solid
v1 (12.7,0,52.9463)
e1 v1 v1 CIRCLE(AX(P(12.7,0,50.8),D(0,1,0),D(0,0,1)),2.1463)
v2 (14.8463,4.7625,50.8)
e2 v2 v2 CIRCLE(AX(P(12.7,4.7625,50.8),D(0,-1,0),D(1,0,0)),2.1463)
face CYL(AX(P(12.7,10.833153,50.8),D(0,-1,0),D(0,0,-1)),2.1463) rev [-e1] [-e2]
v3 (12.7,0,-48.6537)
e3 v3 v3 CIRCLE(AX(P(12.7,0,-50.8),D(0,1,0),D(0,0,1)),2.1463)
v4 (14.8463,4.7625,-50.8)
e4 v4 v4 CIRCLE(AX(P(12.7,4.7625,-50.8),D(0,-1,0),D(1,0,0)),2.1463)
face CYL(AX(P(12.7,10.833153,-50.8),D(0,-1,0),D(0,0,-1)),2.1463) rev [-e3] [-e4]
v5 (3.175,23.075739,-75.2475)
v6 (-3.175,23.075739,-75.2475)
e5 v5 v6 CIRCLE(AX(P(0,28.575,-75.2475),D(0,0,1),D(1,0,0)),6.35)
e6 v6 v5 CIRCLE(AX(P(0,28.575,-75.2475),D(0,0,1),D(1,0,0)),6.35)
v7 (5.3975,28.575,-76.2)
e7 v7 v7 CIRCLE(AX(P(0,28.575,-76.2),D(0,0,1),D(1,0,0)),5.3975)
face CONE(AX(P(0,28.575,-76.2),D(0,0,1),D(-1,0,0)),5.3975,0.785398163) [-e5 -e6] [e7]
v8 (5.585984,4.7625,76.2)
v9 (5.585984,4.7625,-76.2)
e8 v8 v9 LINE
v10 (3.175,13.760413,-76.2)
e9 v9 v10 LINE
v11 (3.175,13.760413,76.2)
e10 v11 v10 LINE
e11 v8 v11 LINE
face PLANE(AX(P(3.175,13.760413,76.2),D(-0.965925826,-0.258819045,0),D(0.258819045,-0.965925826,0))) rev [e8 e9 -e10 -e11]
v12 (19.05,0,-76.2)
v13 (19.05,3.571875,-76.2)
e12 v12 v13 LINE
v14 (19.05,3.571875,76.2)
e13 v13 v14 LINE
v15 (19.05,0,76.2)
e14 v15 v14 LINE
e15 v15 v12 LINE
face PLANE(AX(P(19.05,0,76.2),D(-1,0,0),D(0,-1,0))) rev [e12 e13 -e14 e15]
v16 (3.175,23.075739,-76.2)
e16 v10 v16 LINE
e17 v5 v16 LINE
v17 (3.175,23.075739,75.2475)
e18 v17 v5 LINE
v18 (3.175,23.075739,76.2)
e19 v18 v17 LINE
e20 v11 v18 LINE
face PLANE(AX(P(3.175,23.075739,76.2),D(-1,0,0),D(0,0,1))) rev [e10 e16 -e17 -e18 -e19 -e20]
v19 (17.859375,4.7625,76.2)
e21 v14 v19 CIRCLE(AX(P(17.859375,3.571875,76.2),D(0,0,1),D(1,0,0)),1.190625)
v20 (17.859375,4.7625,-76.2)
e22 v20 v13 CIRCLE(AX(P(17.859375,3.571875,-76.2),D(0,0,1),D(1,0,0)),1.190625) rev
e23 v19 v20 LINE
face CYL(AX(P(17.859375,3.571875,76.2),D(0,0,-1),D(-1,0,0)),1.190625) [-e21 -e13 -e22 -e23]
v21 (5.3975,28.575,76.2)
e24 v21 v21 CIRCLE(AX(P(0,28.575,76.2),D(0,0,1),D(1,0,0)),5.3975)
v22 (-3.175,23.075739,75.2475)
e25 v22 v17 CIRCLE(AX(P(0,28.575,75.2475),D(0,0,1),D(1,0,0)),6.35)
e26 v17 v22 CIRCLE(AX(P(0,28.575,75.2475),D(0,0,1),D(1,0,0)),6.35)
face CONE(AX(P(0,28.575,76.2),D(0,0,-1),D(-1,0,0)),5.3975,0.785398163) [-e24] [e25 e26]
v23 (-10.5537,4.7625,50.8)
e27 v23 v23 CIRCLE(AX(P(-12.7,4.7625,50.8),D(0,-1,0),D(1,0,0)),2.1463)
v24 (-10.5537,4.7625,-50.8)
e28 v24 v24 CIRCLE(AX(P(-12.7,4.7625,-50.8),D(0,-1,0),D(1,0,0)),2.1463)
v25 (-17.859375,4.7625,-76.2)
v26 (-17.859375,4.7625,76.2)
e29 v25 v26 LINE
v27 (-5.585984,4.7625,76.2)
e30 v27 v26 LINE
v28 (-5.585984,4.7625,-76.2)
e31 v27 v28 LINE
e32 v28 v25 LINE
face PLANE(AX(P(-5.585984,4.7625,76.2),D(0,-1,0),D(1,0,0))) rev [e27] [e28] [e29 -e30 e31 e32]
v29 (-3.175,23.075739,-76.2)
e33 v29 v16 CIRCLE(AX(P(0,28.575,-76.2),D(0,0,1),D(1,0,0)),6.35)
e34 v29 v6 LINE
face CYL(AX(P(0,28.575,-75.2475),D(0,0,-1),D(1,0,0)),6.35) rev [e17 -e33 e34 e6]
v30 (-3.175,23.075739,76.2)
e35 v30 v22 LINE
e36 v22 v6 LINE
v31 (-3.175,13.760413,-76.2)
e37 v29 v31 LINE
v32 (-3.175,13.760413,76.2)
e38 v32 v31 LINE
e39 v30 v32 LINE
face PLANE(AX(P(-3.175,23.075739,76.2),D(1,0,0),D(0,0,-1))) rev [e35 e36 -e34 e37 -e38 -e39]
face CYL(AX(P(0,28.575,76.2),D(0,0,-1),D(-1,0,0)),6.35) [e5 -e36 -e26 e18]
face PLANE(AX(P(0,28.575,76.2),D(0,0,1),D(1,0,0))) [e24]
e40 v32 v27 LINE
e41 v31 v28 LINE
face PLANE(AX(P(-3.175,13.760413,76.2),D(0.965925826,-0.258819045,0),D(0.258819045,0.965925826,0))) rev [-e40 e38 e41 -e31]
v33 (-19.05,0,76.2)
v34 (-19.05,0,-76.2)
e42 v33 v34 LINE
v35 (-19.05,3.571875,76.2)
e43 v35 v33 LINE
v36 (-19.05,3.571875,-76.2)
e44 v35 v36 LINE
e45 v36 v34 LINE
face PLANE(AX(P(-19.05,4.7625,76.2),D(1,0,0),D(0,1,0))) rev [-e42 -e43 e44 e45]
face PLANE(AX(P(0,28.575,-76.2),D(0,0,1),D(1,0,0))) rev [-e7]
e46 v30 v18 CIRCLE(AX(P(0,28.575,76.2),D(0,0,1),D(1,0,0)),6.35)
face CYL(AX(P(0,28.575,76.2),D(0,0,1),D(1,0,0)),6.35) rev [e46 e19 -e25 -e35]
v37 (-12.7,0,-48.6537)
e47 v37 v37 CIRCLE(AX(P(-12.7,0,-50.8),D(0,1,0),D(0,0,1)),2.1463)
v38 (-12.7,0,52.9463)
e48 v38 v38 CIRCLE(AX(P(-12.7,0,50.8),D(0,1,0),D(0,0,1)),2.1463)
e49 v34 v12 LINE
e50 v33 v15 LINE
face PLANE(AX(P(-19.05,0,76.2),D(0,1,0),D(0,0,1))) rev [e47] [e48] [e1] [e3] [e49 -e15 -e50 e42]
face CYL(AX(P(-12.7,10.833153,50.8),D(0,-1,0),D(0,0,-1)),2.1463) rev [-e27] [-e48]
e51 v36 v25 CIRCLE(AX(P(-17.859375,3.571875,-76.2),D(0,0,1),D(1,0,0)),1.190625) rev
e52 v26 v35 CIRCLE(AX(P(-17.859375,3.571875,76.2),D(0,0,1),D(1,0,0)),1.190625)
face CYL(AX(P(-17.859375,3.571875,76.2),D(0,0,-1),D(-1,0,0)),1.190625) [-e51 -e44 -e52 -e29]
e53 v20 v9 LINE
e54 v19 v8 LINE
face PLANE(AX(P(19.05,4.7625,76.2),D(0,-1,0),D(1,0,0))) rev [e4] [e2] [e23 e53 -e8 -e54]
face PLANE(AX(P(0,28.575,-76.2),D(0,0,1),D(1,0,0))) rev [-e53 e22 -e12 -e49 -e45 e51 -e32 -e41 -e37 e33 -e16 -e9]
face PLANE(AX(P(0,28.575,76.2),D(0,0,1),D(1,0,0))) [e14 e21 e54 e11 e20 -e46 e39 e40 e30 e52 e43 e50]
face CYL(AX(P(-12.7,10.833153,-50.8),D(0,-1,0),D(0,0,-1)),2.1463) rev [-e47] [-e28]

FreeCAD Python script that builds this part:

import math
import FreeCAD as App
import Part
import Sketcher
from FreeCAD import Vector
Q = App.Units.Quantity


def edges_at(feature, points):
    """Names of the edges that pass closest to the given points."""
    edges = feature.Shape.Edges
    near = lambda p: min(range(len(edges)), key=lambda i: edges[i].distToShape(Part.Vertex(*p))[0])
    return sorted({f"Edge{near(p) + 1}" for p in points})

doc = App.newDocument("Part")
params = doc.addObject("Spreadsheet::Sheet", "Params")
for row, (alias, value) in enumerate([
    ("sketch1_radius", "0.25 in"),
    ("sketch1_width", "1.5 in"),
    ("sketch1_height", "0.1875 in"),
    ("pad1_length", "6 in"),
    ("groove_angle", "360 deg"),
    ("fillet_radius", "0.046875 in"),
    ("sketch3_diameter", "0.169 in"),
    ("pocket1_length", "0.1875 in"),
    ("linearpattern_pitch", "4 in"),
], start=1):
    params.set(f"A{row}", alias)
    params.set(f"B{row}", "=" + value)
    params.setAlias(f"B{row}", alias)

body = doc.addObject("PartDesign::Body", "Body")

# Sketch on XY plane
sketch1 = body.newObject("Sketcher::SketchObject", "Sketch")
sketch1.AttachmentSupport = (doc.getObject("XY_Plane"), [""])
sketch1.MapMode = "FlatFace"
sketch1.addGeometry([
    Part.LineSegment(Vector(-19.05, 0, 0), Vector(19.05, 0, 0)),  # 0
    Part.LineSegment(Vector(19.05, 0, 0), Vector(19.05, 4.7625, 0)),  # 1
    Part.LineSegment(Vector(19.05, 4.7625, 0), Vector(5.585984, 4.7625, 0)),  # 2
    Part.LineSegment(Vector(5.585984, 4.7625, 0), Vector(3.175, 13.760413, 0)),  # 3
    Part.LineSegment(Vector(3.175, 13.760413, 0), Vector(3.175, 23.075739, 0)),  # 4
    Part.ArcOfCircle(Part.Circle(Vector(0, 28.575, 0), Vector(0, 0, 1), 6.35), math.radians(-60), math.radians(240)),  # 5
    Part.LineSegment(Vector(-3.175, 23.075739, 0), Vector(-3.175, 13.760413, 0)),  # 6
    Part.LineSegment(Vector(-3.175, 13.760413, 0), Vector(-5.585984, 4.7625, 0)),  # 7
    Part.LineSegment(Vector(-5.585984, 4.7625, 0), Vector(-19.05, 4.7625, 0)),  # 8
    Part.LineSegment(Vector(-19.05, 4.7625, 0), Vector(-19.05, 0, 0)),  # 9
], False)
sketch1.addConstraint([
    Sketcher.Constraint("Coincident", 0, 2, 1, 1),
    Sketcher.Constraint("Coincident", 1, 2, 2, 1),
    Sketcher.Constraint("Coincident", 2, 2, 3, 1),
    Sketcher.Constraint("Coincident", 3, 2, 4, 1),
    Sketcher.Constraint("Coincident", 4, 2, 5, 1),
    Sketcher.Constraint("Coincident", 5, 2, 6, 1),
    Sketcher.Constraint("Coincident", 6, 2, 7, 1),
    Sketcher.Constraint("Coincident", 7, 2, 8, 1),
    Sketcher.Constraint("Coincident", 8, 2, 9, 1),
    Sketcher.Constraint("Coincident", 9, 2, 0, 1),
    Sketcher.Constraint("Horizontal", 0),
    Sketcher.Constraint("Vertical", 1),
    Sketcher.Constraint("Horizontal", 2),
    Sketcher.Constraint("Vertical", 4),
    Sketcher.Constraint("Vertical", 6),
    Sketcher.Constraint("Horizontal", 8),
    Sketcher.Constraint("Vertical", 9),
    Sketcher.Constraint("Symmetric", 0, 2, 9, 2, -1, 1),
    Sketcher.Constraint("Symmetric", 4, 2, 5, 2, -2),
    Sketcher.Constraint("Symmetric", 2, 2, 7, 2, -2),
    Sketcher.Constraint("Horizontal", 3, 2, 6, 2),
    Sketcher.Constraint("Radius", 5, Q("0.25 in")),
    Sketcher.Constraint("DistanceX", 0, 1, 0, 2, Q("1.5 in")),
    Sketcher.Constraint("Angle", 3, Q("105 deg")),
    Sketcher.Constraint("DistanceY", 1, 1, 1, 2, Q("0.1875 in")),
    Sketcher.Constraint("DistanceX", 5, 2, 4, 2, Q("0.25 in")),
    Sketcher.Constraint("DistanceY", -1, 1, 5, 3, Q("1.125 in")),
    Sketcher.Constraint("DistanceX", 2, 2, 2, 1, Q("13.464016 mm")),
])
sketch1.setExpression("Constraints[21]", "Params.sketch1_radius")
sketch1.setExpression("Constraints[22]", "Params.sketch1_width")
sketch1.setExpression("Constraints[24]", "Params.sketch1_height")
pad1 = body.newObject("PartDesign::Pad", "Pad")
pad1.Profile = sketch1
pad1.setExpression("Length", "Params.pad1_length")
pad1.Midplane = True

# Sketch on YZ plane
sketch2 = body.newObject("Sketcher::SketchObject", "Sketch001")
sketch2.AttachmentSupport = (doc.getObject("YZ_Plane"), [""])
sketch2.MapMode = "FlatFace"
sketch2.addGeometry([
    Part.LineSegment(Vector(33.9725, 76.2, 0), Vector(34.925, 75.2475, 0)),
    Part.LineSegment(Vector(34.925, 75.2475, 0), Vector(34.925, 76.2, 0)),
    Part.LineSegment(Vector(34.925, 76.2, 0), Vector(33.9725, 76.2, 0)),
], False)
sketch2.addGeometry(Part.LineSegment(Vector(28.575, 76.2, 0), Vector(28.575, 75.2475, 0)), True)  # axis
sketch2.addConstraint([
    Sketcher.Constraint("Coincident", 0, 2, 1, 1),
    Sketcher.Constraint("Coincident", 1, 2, 2, 1),
    Sketcher.Constraint("Coincident", 2, 2, 0, 1),
    Sketcher.Constraint("Vertical", 1),
    Sketcher.Constraint("Horizontal", 2),
    Sketcher.Constraint("Vertical", 3),
    Sketcher.Constraint("Horizontal", 2, 2, 3, 1),
    Sketcher.Constraint("Horizontal", 0, 2, 3, 2),
    Sketcher.Constraint("Equal", 2, 1),
    Sketcher.Constraint("DistanceY", -1, 1, 1, 2, Q("3 in")),
    Sketcher.Constraint("DistanceX", 3, 1, 1, 2, Q("0.25 in")),
    Sketcher.Constraint("DistanceX", 2, 2, 2, 1, Q("0.0375 in")),
    Sketcher.Constraint("DistanceX", -1, 1, 0, 2, Q("1.375 in")),
])
groove = body.newObject("PartDesign::Groove", "Groove")
groove.Profile = sketch2
groove.ReferenceAxis = (sketch2, ["Axis0"])
groove.setExpression("Angle", "Params.groove_angle")
doc.recompute()

mirrored = body.newObject("PartDesign::Mirrored", "Mirrored")
mirrored.Originals = [groove]
mirrored.MirrorPlane = (doc.getObject("XY_Plane"), [""])
body.Tip = mirrored
doc.recompute()

fillet = body.newObject("PartDesign::Fillet", "Fillet")
fillet.Base = (mirrored, edges_at(mirrored, [(-19.05, 4.763, 0), (19.05, 4.763, 0)]))
fillet.setExpression("Radius", "Params.fillet_radius")

# Sketch on XZ plane
sketch3 = body.newObject("Sketcher::SketchObject", "Sketch002")
sketch3.AttachmentSupport = (doc.getObject("XZ_Plane"), [""])
sketch3.MapMode = "FlatFace"
sketch3.addGeometry([
    Part.Circle(Vector(12.7, 50.8, 0), Vector(0, 0, 1), 2.1463),
    Part.Circle(Vector(-12.7, 50.8, 0), Vector(0, 0, 1), 2.1463),
], False)
sketch3.addConstraint([
    Sketcher.Constraint("Equal", 0, 1),
    Sketcher.Constraint("Symmetric", 0, 3, 1, 3, -2),
    Sketcher.Constraint("Diameter", 0, Q("0.169 in")),
    Sketcher.Constraint("DistanceY", -1, 1, 0, 3, Q("2 in")),
    Sketcher.Constraint("DistanceX", 1, 3, 0, 3, Q("1 in")),
])
sketch3.setExpression("Constraints[2]", "Params.sketch3_diameter")
pocket1 = body.newObject("PartDesign::Pocket", "Pocket")
pocket1.Profile = sketch3
pocket1.setExpression("Length", "Params.pocket1_length")
doc.recompute()

linearpattern = body.newObject("PartDesign::LinearPattern", "LinearPattern")
linearpattern.Originals = [pocket1]
linearpattern.Direction = (doc.getObject("Z_Axis"), [""])
linearpattern.Mode = "offset"
linearpattern.setExpression("Offset", "Params.linearpattern_pitch")
linearpattern.Occurrences = 19
linearpattern.Reversed = True
body.Tip = linearpattern

doc.recompute()
